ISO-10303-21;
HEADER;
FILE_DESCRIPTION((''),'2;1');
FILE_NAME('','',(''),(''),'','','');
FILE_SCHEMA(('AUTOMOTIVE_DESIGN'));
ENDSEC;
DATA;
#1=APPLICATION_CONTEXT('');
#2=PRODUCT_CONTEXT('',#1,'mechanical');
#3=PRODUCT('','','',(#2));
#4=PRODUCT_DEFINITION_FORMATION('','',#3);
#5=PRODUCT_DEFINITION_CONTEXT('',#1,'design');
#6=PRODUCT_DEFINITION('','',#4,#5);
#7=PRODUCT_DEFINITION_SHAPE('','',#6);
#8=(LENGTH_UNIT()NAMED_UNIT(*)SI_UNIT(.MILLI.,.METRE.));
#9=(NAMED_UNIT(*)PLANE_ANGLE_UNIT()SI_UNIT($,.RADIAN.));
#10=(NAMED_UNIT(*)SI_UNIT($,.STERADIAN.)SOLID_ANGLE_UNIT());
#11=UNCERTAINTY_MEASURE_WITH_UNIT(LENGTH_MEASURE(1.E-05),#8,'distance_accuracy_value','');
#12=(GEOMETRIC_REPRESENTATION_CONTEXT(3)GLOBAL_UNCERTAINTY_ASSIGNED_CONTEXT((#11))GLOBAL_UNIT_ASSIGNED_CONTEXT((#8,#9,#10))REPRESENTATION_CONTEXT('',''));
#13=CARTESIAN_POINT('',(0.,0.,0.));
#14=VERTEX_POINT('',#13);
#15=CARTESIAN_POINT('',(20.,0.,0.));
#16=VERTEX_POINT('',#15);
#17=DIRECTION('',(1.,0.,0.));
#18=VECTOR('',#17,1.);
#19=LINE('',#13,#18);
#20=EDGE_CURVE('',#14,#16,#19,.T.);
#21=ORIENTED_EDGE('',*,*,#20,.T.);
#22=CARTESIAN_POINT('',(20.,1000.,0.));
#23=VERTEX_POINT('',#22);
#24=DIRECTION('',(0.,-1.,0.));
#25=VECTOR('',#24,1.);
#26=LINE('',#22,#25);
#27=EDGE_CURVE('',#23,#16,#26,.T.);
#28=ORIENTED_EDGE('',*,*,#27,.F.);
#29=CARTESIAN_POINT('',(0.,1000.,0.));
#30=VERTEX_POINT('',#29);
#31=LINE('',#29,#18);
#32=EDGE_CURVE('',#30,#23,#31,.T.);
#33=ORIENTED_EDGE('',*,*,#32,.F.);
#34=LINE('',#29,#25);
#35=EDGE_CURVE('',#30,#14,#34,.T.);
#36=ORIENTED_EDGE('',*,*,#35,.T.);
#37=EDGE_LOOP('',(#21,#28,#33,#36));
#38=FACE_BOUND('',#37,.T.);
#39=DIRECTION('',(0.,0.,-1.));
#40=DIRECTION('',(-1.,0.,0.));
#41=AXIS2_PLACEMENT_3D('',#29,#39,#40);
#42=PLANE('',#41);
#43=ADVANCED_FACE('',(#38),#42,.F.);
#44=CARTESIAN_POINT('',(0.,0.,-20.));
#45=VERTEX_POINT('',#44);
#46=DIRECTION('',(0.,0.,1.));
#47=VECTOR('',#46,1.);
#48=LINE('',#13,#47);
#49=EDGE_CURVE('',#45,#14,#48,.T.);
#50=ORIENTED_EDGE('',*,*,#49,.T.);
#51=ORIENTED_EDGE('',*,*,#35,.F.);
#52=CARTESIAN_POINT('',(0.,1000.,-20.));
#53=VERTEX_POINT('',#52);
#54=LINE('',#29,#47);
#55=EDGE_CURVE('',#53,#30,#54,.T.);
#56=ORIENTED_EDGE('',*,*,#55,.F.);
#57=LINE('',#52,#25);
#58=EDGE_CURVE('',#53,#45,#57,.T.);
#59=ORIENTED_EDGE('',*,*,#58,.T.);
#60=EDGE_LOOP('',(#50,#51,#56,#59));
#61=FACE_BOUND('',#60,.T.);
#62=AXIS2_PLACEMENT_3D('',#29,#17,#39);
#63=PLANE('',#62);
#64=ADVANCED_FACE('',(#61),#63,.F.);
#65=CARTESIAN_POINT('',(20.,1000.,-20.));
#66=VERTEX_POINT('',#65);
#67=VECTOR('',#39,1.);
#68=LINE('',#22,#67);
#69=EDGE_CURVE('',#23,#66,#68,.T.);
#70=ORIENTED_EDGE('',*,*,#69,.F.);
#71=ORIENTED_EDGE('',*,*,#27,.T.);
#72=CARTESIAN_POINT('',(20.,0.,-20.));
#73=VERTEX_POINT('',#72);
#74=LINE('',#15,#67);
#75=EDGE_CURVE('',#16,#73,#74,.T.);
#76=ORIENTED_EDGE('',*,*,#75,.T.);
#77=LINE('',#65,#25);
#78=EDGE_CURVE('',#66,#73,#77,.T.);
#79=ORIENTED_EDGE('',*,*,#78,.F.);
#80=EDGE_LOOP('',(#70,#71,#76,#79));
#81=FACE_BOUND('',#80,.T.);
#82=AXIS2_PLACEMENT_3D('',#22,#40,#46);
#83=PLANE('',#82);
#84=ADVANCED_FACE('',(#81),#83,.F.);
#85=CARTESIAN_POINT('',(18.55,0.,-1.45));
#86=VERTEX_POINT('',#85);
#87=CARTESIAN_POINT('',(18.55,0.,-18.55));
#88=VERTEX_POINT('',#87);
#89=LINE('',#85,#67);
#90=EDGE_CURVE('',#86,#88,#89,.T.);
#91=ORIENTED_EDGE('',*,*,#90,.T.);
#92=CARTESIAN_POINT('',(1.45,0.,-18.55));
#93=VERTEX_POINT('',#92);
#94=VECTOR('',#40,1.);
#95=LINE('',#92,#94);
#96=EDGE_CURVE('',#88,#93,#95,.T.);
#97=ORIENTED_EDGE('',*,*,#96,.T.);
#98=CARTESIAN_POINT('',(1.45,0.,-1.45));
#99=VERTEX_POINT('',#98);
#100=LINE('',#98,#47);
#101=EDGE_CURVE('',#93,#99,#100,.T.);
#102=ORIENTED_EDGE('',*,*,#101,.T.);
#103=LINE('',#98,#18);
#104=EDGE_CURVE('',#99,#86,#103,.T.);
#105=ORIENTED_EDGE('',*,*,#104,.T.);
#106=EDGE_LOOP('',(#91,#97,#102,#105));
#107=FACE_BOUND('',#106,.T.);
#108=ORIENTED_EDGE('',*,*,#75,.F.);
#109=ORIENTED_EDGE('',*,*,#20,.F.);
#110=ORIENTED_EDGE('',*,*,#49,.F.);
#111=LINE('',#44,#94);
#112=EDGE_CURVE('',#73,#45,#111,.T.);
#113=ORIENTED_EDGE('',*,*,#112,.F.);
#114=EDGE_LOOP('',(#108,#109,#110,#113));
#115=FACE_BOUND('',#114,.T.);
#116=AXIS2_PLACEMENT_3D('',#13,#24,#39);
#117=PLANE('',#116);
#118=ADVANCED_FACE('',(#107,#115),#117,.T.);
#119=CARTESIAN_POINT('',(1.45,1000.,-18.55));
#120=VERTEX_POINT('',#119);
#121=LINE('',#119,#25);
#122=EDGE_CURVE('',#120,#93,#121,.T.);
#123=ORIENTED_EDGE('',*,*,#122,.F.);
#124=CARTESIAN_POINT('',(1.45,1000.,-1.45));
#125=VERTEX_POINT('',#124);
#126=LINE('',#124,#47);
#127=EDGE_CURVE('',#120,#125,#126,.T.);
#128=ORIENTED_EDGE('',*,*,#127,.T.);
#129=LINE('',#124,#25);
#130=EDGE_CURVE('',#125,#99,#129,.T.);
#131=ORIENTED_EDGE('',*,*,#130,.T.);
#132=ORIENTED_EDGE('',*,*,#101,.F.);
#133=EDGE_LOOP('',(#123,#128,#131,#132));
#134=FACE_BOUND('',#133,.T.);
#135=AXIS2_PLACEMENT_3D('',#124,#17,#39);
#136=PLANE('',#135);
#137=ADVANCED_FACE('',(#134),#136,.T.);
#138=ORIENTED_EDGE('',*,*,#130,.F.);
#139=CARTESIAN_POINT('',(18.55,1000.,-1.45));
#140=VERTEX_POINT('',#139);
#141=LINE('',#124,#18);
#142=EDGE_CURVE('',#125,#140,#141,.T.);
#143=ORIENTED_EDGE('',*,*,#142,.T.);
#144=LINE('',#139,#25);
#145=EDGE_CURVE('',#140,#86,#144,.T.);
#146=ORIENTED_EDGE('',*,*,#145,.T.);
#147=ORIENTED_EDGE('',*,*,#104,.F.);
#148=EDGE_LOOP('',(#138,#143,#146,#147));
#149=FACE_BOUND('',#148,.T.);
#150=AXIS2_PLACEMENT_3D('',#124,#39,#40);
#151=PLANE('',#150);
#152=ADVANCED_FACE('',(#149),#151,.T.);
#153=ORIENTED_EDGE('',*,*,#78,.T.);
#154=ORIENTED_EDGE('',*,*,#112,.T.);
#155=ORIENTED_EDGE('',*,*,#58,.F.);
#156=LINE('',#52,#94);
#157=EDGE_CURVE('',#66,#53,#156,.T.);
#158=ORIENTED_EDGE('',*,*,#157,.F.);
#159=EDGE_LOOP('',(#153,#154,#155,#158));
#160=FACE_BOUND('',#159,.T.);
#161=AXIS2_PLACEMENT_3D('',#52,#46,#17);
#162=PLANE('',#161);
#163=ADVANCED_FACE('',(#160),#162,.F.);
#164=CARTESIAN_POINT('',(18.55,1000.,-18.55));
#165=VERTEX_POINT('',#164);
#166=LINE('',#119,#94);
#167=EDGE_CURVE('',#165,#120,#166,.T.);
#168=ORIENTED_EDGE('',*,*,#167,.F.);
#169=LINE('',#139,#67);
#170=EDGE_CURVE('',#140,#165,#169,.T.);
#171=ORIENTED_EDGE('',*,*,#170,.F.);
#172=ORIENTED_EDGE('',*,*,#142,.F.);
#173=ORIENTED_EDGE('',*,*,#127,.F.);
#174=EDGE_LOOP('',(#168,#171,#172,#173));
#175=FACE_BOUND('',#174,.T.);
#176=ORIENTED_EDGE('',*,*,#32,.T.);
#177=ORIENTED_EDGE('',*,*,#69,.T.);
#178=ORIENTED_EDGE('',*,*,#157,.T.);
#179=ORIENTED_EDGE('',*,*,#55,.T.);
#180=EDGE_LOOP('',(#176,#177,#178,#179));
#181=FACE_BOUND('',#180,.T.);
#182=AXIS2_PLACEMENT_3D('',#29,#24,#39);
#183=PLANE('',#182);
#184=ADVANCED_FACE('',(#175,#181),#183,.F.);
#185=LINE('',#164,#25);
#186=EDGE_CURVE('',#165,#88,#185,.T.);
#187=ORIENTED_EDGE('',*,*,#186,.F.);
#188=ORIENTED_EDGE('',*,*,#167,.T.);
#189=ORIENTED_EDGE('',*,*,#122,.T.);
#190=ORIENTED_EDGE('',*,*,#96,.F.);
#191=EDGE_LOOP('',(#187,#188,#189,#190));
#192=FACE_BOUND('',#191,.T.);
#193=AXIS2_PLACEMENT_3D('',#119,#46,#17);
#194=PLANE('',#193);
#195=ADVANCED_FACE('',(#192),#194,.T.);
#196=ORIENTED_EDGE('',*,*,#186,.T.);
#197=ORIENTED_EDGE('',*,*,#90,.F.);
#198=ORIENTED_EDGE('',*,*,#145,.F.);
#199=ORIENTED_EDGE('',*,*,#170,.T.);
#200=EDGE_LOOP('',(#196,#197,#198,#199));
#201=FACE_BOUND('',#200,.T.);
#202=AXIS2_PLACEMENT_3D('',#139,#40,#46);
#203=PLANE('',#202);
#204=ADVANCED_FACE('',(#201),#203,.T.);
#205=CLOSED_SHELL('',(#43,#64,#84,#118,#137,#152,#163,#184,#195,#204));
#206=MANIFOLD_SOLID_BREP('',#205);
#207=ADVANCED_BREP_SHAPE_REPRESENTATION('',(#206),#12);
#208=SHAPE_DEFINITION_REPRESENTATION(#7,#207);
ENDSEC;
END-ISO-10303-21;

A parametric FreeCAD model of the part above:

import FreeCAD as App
import Part
import Sketcher

V = App.Vector
Q = App.Units.Quantity


def add_polygon(sketch, points):
    """Adds a closed chain of lines whose ends are joined by coincident constraints."""
    first, n = sketch.GeometryCount, len(points)
    for a, b in zip(points, points[1:] + points[:1]):
        sketch.addGeometry(Part.LineSegment(App.Vector(*a, 0), App.Vector(*b, 0)), False)
    for i in range(n):
        sketch.addConstraint(Sketcher.Constraint("Coincident", first + i, 2, first + (i + 1) % n, 1))

doc = App.newDocument("Part")
params = doc.addObject("Spreadsheet::Sheet", "Params")
for row, (alias, value) in enumerate([
    ("sketch1_width", "20 mm"),
    ("sketch1_width2", "17.1 mm"),
    ("pad1_length", "1000 mm"),
], start=1):
    params.set(f"A{row}", alias)
    params.set(f"B{row}", "=" + value)
    params.setAlias(f"B{row}", alias)

body = doc.addObject("PartDesign::Body", "Body")

# Sketch on XZ plane
sketch1 = doc.addObject("Sketcher::SketchObject", "Sketch")
body.addObject(sketch1)
sketch1.AttachmentSupport = (doc.XZ_Plane, [""])
sketch1.MapMode = "FlatFace"
add_polygon(sketch1, [(0, -20), (0, 0), (20, 0), (20, -20)])  # lines 0-3
add_polygon(sketch1, [(19, -1), (1, -1), (1, -19), (19, -19)])  # lines 4-7
sketch1.addConstraint(Sketcher.Constraint("Vertical", 0))
sketch1.addConstraint(Sketcher.Constraint("Horizontal", 1))
sketch1.addConstraint(Sketcher.Constraint("Vertical", 2))
sketch1.addConstraint(Sketcher.Constraint("Horizontal", 3))
sketch1.addConstraint(Sketcher.Constraint("Horizontal", 4))
sketch1.addConstraint(Sketcher.Constraint("Vertical", 5))
sketch1.addConstraint(Sketcher.Constraint("Horizontal", 6))
sketch1.addConstraint(Sketcher.Constraint("Vertical", 7))
sketch1.addConstraint(Sketcher.Constraint("Coincident", 0, 2, -1, 1))
sketch1.addConstraint(Sketcher.Constraint("Equal", 3, 0))
sketch1.addConstraint(Sketcher.Constraint("Equal", 6, 5))
sketch1.addConstraint(Sketcher.Constraint("DistanceX", 1, 1, 1, 2, Q("20 mm")))
sketch1.addConstraint(Sketcher.Constraint("DistanceX", 4, 2, 4, 1, Q("17.1 mm")))
sketch1.addConstraint(Sketcher.Constraint("DistanceX", -1, 1, 4, 2, Q("1.45 mm")))
sketch1.addConstraint(Sketcher.Constraint("DistanceY", 4, 2, -1, 1, Q("1.45 mm")))
sketch1.setExpression("Constraints[19]", "Params.sketch1_width")
sketch1.setExpression("Constraints[20]", "Params.sketch1_width2")
pad1 = doc.addObject("PartDesign::Pad", "Pad")
body.addObject(pad1)
pad1.Profile = sketch1
pad1.setExpression("Length", "Params.pad1_length")
pad1.Reversed = True

doc.recompute()
